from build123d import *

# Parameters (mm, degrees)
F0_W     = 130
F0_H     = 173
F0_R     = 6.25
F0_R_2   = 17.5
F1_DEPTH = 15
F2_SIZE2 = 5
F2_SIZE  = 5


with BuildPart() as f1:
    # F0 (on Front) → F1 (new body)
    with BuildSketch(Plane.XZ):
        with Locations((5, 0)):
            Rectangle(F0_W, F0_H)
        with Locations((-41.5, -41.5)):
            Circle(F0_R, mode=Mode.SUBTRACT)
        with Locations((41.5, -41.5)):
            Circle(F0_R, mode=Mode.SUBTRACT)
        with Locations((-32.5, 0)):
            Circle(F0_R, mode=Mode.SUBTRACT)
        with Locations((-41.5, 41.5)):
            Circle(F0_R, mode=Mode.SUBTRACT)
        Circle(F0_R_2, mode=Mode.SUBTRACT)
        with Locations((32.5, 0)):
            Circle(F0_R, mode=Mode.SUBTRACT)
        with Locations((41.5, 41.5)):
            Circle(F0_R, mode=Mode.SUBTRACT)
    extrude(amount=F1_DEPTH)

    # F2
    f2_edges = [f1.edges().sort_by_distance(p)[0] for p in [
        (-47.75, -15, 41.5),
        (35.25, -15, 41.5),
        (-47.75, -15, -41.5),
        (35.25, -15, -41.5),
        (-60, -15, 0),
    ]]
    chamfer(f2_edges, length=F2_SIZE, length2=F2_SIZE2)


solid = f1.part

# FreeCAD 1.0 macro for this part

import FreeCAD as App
import Part
import Sketcher
from FreeCAD import Vector
Q = App.Units.Quantity


def edges_at(feature, points):
    """Names of the edges that pass closest to the given points."""
    edges = feature.Shape.Edges
    near = lambda p: min(range(len(edges)), key=lambda i: edges[i].distToShape(Part.Vertex(*p))[0])
    return sorted({f"Edge{near(p) + 1}" for p in points})


def add_polygon(sketch, points):
    """Adds a closed chain of lines whose ends are joined by coincident constraints."""
    first, n = sketch.GeometryCount, len(points)
    for a, b in zip(points, points[1:] + points[:1]):
        sketch.addGeometry(Part.LineSegment(App.Vector(*a, 0), App.Vector(*b, 0)), False)
    for i in range(n):
        sketch.addConstraint(Sketcher.Constraint("Coincident", first + i, 2, first + (i + 1) % n, 1))

doc = App.newDocument("Part")
body = doc.addObject("PartDesign::Body", "Body")

sketch1 = doc.addObject("Sketcher::SketchObject", "Sketch")
body.addObject(sketch1)
sketch1.AttachmentSupport = (doc.XZ_Plane, [""])
sketch1.MapMode = "FlatFace"
add_polygon(sketch1, [(-60, 86), (-60, -86), (70, -86), (70, 86)])
sketch1.addGeometry(Part.Circle(Vector(-42, -42, 0), Vector(0, 0, 1), 6), False)
sketch1.addGeometry(Part.Circle(Vector(42, -42, 0), Vector(0, 0, 1), 6), False)
sketch1.addGeometry(Part.Circle(Vector(-32, 0, 0), Vector(0, 0, 1), 6), False)
sketch1.addGeometry(Part.Circle(Vector(-42, 42, 0), Vector(0, 0, 1), 6), False)
sketch1.addGeometry(Part.Circle(Vector(0, 0, 0), Vector(0, 0, 1), 18), False)
sketch1.addGeometry(Part.Circle(Vector(32, 0, 0), Vector(0, 0, 1), 6), False)
sketch1.addGeometry(Part.Circle(Vector(42, 42, 0), Vector(0, 0, 1), 6), False)
sketch1.addConstraint([
    Sketcher.Constraint("Vertical", 0),
    Sketcher.Constraint("Horizontal", 1),
    Sketcher.Constraint("Vertical", 2),
    Sketcher.Constraint("Horizontal", 3),
    Sketcher.Constraint("Coincident", 8, 3, -1, 1),
    Sketcher.Constraint("Equal", 4, 5),
    Sketcher.Constraint("Equal", 5, 6),
    Sketcher.Constraint("Equal", 6, 7),
    Sketcher.Constraint("Equal", 7, 9),
    Sketcher.Constraint("Equal", 9, 10),
    Sketcher.Constraint("Symmetric", 5, 3, 7, 3, -1, 1),
    Sketcher.Constraint("Symmetric", 6, 3, 9, 3, -1, 1),
    Sketcher.Constraint("Symmetric", 4, 3, 10, 3, -1, 1),
    Sketcher.Constraint("Symmetric", 4, 3, 5, 3, -2),
    Sketcher.Constraint("PointOnObject", 6, 3, -1),
    Sketcher.Constraint("Diameter", 8, Q("35 mm")),
    Sketcher.Constraint("Diameter", 4, Q("12.5 mm")),
    Sketcher.Constraint("DistanceX", 1, 1, 1, 2, Q("130 mm")),
    Sketcher.Constraint("DistanceY", 0, 2, 0, 1, Q("173 mm")),
    Sketcher.Constraint("DistanceX", 0, 2, -1, 1, Q("60 mm")),
    Sketcher.Constraint("DistanceX", 4, 3, 5, 3, Q("83 mm")),
    Sketcher.Constraint("DistanceX", 4, 3, 6, 3, Q("9 mm")),
    Sketcher.Constraint("DistanceY", 4, 3, 7, 3, Q("83 mm")),
    Sketcher.Constraint("DistanceY", 0, 2, 4, 3, Q("45 mm")),
])
pad1 = doc.addObject("PartDesign::Pad", "Pad")
body.addObject(pad1)
pad1.Profile = sketch1
pad1.Length = 15
doc.recompute()

chamfer = doc.addObject("PartDesign::Chamfer", "Chamfer")
body.addObject(chamfer)
chamfer.Base = (pad1, edges_at(pad1, [
    (-47.75, -15, 41.5),
    (35.25, -15, 41.5),
    (-47.75, -15, -41.5),
    (35.25, -15, -41.5),
    (-60, -15, 0),
]))
chamfer.ChamferType = "Two distances"
chamfer.Size = 5
chamfer.Size2 = 5

doc.recompute()
